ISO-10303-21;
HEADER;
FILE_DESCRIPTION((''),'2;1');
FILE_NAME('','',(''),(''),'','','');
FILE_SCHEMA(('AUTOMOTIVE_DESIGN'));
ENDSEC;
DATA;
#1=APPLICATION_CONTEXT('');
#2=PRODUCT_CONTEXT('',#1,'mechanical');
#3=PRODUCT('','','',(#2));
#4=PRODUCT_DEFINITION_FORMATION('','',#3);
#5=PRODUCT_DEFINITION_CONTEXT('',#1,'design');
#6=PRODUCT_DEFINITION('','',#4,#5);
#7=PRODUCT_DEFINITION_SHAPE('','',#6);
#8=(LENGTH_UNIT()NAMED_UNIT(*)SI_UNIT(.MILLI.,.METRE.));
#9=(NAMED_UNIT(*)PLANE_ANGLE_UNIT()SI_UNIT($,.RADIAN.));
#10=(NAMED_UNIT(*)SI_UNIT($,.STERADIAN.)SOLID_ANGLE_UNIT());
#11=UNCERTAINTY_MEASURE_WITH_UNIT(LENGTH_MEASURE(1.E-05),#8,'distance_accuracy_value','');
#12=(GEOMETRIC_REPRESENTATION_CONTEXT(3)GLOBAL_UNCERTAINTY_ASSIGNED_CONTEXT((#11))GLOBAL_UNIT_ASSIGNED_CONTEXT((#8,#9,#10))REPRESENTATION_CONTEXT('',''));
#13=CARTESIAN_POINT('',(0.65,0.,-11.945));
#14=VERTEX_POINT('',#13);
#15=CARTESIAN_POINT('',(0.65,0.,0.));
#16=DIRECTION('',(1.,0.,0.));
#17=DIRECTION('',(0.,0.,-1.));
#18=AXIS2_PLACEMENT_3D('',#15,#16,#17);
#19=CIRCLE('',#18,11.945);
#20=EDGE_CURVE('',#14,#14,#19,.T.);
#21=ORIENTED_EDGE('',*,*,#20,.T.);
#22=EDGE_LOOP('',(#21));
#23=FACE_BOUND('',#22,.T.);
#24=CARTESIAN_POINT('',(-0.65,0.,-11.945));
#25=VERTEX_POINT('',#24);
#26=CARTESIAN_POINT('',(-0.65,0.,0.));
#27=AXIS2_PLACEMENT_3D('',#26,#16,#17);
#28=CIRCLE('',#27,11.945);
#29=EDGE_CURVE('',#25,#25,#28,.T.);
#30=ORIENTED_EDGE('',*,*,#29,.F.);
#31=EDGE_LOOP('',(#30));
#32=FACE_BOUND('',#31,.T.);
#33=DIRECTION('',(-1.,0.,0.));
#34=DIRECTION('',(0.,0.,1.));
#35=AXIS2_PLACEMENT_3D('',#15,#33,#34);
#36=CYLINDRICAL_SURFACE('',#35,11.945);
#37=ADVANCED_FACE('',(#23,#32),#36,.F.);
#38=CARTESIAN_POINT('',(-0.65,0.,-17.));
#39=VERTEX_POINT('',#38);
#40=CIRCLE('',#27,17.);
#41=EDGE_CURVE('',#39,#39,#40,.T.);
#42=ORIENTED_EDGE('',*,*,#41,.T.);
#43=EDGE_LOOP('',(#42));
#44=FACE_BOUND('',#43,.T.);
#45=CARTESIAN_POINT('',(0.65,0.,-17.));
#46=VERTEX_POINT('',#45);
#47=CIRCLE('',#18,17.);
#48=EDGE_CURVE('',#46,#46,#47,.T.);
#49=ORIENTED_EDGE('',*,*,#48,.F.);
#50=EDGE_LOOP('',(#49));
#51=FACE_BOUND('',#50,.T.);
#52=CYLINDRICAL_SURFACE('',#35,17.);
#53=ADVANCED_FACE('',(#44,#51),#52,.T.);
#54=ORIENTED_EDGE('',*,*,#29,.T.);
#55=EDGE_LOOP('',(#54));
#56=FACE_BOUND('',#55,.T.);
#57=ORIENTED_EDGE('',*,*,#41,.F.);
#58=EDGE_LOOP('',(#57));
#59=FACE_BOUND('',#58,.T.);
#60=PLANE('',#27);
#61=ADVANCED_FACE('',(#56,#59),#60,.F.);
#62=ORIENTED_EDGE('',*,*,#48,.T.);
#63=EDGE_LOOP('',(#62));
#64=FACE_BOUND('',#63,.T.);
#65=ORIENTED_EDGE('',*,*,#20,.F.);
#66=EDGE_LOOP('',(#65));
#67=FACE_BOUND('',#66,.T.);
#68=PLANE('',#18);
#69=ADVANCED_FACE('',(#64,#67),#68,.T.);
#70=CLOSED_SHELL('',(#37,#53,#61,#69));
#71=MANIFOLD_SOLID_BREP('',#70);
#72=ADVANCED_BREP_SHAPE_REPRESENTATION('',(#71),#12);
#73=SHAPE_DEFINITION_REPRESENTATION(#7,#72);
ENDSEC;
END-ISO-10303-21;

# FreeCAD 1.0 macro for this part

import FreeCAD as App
import Part
import Sketcher

V = App.Vector
Q = App.Units.Quantity

doc = App.newDocument("Part")
body = doc.addObject("PartDesign::Body", "Body")

# Sketch on YZ plane
sketch1 = body.newObject("Sketcher::SketchObject", "Sketch")
sketch1.AttachmentSupport = (doc.getObject("YZ_Plane"), [""])
sketch1.MapMode = "FlatFace"
sketch1.addGeometry(Part.Circle(V(0, 0, 0), V(0, 0, 1), 17), False)
sketch1.addGeometry(Part.Circle(V(0, 0, 0), V(0, 0, 1), 12), False)
sketch1.addConstraint(Sketcher.Constraint("Coincident", 0, 3, -1, 1))
sketch1.addConstraint(Sketcher.Constraint("Coincident", 1, 3, -1, 1))
sketch1.addConstraint(Sketcher.Constraint("Diameter", 0, Q("34 mm")))
sketch1.addConstraint(Sketcher.Constraint("Diameter", 1, Q("23.89 mm")))
pad1 = body.newObject("PartDesign::Pad", "Pad")
pad1.Profile = sketch1
pad1.Length = 1.3
pad1.Midplane = True

doc.recompute()
